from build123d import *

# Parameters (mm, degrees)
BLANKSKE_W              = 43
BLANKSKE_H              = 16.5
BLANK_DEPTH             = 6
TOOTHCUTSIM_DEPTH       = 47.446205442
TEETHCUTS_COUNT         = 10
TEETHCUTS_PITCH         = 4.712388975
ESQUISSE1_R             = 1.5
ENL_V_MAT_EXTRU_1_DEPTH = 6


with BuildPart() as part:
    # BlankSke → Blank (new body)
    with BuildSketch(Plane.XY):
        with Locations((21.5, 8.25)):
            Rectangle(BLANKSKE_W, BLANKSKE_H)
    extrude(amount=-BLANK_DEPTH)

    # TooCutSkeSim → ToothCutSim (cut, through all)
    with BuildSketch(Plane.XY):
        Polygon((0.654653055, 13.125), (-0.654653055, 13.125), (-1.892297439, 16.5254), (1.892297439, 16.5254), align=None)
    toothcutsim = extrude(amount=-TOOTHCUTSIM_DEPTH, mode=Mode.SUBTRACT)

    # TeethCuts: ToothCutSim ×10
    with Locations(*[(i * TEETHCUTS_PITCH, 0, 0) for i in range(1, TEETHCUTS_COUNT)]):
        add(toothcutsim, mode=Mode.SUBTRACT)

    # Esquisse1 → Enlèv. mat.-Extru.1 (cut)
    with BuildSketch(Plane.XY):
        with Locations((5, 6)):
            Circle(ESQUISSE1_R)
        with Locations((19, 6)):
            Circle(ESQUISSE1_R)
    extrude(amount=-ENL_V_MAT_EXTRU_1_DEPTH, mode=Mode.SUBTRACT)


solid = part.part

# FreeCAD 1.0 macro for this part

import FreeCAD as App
import Part
import Sketcher
Q = App.Units.Quantity


def add_polygon(sketch, points):
    """Adds a closed chain of lines whose ends are joined by coincident constraints."""
    first, n = sketch.GeometryCount, len(points)
    for a, b in zip(points, points[1:] + points[:1]):
        sketch.addGeometry(Part.LineSegment(App.Vector(*a, 0), App.Vector(*b, 0)), False)
    for i in range(n):
        sketch.addConstraint(Sketcher.Constraint("Coincident", first + i, 2, first + (i + 1) % n, 1))

doc = App.newDocument("Part")
body = doc.addObject("PartDesign::Body", "Body")

# Sketch on XY plane
sketch1 = body.newObject("Sketcher::SketchObject", "Sketch")
sketch1.AttachmentSupport = (doc.getObject("XY_Plane"), [""])
sketch1.MapMode = "FlatFace"
add_polygon(sketch1, [(0, 16.5), (0, 0), (43, 0), (43, 16.5)])  # lines 0-3
sketch1.addConstraint([
    Sketcher.Constraint("Vertical", 0),
    Sketcher.Constraint("Horizontal", 1),
    Sketcher.Constraint("Vertical", 2),
    Sketcher.Constraint("Horizontal", 3),
    Sketcher.Constraint("Coincident", 0, 2, -1, 1),
    Sketcher.Constraint("DistanceX", 1, 1, 1, 2, Q("43 mm")),
    Sketcher.Constraint("DistanceY", 0, 2, 0, 1, Q("16.5 mm")),
])
pad1 = body.newObject("PartDesign::Pad", "Pad")
pad1.Profile = sketch1
pad1.Length = 6
pad1.Reversed = True

# Sketch on XY plane
sketch2 = body.newObject("Sketcher::SketchObject", "Sketch001")
sketch2.AttachmentSupport = (doc.getObject("XY_Plane"), [""])
sketch2.MapMode = "FlatFace"
add_polygon(sketch2, [(-0.654653, 13.125), (0.654653, 13.125), (1.892297, 16.5254), (-1.892297, 16.5254)])  # lines 0-3
sketch2.addConstraint([
    Sketcher.Constraint("Horizontal", 0),
    Sketcher.Constraint("Horizontal", 2),
    Sketcher.Constraint("Equal", 1, 3),
    Sketcher.Constraint("Angle", 1, Q("70 deg")),
    Sketcher.Constraint("DistanceY", -1, 1, 0, 2, Q("13.125 mm")),
    Sketcher.Constraint("DistanceY", -1, 1, 1, 2, Q("16.5254 mm")),
    Sketcher.Constraint("DistanceX", 0, 1, 0, 2, Q("1.309306 mm")),
    Sketcher.Constraint("DistanceX", -1, 1, 0, 2, Q("0.654653 mm")),
])
pocket1 = body.newObject("PartDesign::Pocket", "Pocket")
pocket1.Profile = sketch2
pocket1.Type = "ThroughAll"
doc.recompute()

linearpattern = body.newObject("PartDesign::LinearPattern", "LinearPattern")
linearpattern.Originals = [pocket1]
linearpattern.Direction = (doc.getObject("X_Axis"), [""])
linearpattern.Mode = "offset"
linearpattern.Offset = 4.712389
linearpattern.Occurrences = 10
body.Tip = linearpattern

# Sketch on XY plane
sketch3 = body.newObject("Sketcher::SketchObject", "Sketch002")
sketch3.AttachmentSupport = (doc.getObject("XY_Plane"), [""])
sketch3.MapMode = "FlatFace"
sketch3.addGeometry([
    Part.Circle(App.Vector(5, 6, 0), App.Vector(0, 0, 1), 1.5),
    Part.Circle(App.Vector(19, 6, 0), App.Vector(0, 0, 1), 1.5),
], False)
sketch3.addConstraint([
    Sketcher.Constraint("Equal", 0, 1),
    Sketcher.Constraint("Horizontal", 0, 3, 1, 3),
    Sketcher.Constraint("Diameter", 0, Q("3 mm")),
    Sketcher.Constraint("DistanceX", -1, 1, 0, 3, Q("5 mm")),
    Sketcher.Constraint("DistanceY", -1, 1, 0, 3, Q("6 mm")),
    Sketcher.Constraint("DistanceX", -1, 1, 1, 3, Q("19 mm")),
])
pocket2 = body.newObject("PartDesign::Pocket", "Pocket001")
pocket2.Profile = sketch3
pocket2.Length = 6

doc.recompute()
